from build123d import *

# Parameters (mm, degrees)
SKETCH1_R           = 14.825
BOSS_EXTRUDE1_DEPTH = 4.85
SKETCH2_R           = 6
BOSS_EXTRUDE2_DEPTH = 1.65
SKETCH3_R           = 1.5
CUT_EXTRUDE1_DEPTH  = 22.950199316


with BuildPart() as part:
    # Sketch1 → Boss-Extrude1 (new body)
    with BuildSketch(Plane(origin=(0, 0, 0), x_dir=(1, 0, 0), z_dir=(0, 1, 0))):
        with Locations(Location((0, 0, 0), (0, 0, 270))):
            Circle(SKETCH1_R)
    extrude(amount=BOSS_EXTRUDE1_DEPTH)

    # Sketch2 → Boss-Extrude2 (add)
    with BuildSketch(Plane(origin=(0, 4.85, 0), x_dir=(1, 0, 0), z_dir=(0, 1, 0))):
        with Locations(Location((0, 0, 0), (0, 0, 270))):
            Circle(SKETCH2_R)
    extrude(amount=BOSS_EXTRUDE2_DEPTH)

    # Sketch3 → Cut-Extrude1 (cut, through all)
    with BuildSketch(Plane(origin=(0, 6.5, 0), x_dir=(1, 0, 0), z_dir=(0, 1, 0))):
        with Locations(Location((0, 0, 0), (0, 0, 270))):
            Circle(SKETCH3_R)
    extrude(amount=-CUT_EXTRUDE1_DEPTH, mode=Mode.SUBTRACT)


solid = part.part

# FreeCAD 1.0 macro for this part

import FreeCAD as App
import Part
import Sketcher
from FreeCAD import Vector

doc = App.newDocument("Part")
body = doc.addObject("PartDesign::Body", "Body")

# Sketch on XZ plane
sketch1 = doc.addObject("Sketcher::SketchObject", "Sketch")
body.addObject(sketch1)
sketch1.AttachmentSupport = (doc.XZ_Plane, [""])
sketch1.MapMode = "FlatFace"
sketch1.addGeometry(Part.Circle(Vector(0, 0, 0), Vector(0, 0, 1), 15), False)
sketch1.addConstraint(Sketcher.Constraint("Coincident", 0, 3, -1, 1))
sketch1.addConstraint(Sketcher.Constraint("Diameter", 0, 29.65))
pad1 = doc.addObject("PartDesign::Pad", "Pad")
body.addObject(pad1)
pad1.Profile = sketch1
pad1.Length = 4.85
pad1.Reversed = True

# Sketch on XZ plane
sketch2 = doc.addObject("Sketcher::SketchObject", "Sketch001")
body.addObject(sketch2)
sketch2.AttachmentSupport = (doc.XZ_Plane, [""])
sketch2.MapMode = "FlatFace"
sketch2.AttachmentOffset = App.Placement(Vector(0, 0, -4.85), App.Rotation())
sketch2.addGeometry(Part.Circle(Vector(0, 0, 0), Vector(0, 0, 1), 6), False)
sketch2.addConstraint(Sketcher.Constraint("Coincident", 0, 3, -1, 1))
sketch2.addConstraint(Sketcher.Constraint("Diameter", 0, 12.0))
pad2 = doc.addObject("PartDesign::Pad", "Pad001")
body.addObject(pad2)
pad2.Profile = sketch2
pad2.Length = 1.65
pad2.Reversed = True

# Sketch on XZ plane
sketch3 = doc.addObject("Sketcher::SketchObject", "Sketch002")
body.addObject(sketch3)
sketch3.AttachmentSupport = (doc.XZ_Plane, [""])
sketch3.MapMode = "FlatFace"
sketch3.AttachmentOffset = App.Placement(Vector(0, 0, -6.5), App.Rotation())
sketch3.addGeometry(Part.Circle(Vector(0, 0, 0), Vector(0, 0, 1), 1.5), False)
sketch3.addConstraint(Sketcher.Constraint("Coincident", 0, 3, -1, 1))
sketch3.addConstraint(Sketcher.Constraint("Diameter", 0, 3.0))
pocket1 = doc.addObject("PartDesign::Pocket", "Pocket")
body.addObject(pocket1)
pocket1.Profile = sketch3
pocket1.Type = "ThroughAll"
pocket1.Reversed = True

doc.recompute()
